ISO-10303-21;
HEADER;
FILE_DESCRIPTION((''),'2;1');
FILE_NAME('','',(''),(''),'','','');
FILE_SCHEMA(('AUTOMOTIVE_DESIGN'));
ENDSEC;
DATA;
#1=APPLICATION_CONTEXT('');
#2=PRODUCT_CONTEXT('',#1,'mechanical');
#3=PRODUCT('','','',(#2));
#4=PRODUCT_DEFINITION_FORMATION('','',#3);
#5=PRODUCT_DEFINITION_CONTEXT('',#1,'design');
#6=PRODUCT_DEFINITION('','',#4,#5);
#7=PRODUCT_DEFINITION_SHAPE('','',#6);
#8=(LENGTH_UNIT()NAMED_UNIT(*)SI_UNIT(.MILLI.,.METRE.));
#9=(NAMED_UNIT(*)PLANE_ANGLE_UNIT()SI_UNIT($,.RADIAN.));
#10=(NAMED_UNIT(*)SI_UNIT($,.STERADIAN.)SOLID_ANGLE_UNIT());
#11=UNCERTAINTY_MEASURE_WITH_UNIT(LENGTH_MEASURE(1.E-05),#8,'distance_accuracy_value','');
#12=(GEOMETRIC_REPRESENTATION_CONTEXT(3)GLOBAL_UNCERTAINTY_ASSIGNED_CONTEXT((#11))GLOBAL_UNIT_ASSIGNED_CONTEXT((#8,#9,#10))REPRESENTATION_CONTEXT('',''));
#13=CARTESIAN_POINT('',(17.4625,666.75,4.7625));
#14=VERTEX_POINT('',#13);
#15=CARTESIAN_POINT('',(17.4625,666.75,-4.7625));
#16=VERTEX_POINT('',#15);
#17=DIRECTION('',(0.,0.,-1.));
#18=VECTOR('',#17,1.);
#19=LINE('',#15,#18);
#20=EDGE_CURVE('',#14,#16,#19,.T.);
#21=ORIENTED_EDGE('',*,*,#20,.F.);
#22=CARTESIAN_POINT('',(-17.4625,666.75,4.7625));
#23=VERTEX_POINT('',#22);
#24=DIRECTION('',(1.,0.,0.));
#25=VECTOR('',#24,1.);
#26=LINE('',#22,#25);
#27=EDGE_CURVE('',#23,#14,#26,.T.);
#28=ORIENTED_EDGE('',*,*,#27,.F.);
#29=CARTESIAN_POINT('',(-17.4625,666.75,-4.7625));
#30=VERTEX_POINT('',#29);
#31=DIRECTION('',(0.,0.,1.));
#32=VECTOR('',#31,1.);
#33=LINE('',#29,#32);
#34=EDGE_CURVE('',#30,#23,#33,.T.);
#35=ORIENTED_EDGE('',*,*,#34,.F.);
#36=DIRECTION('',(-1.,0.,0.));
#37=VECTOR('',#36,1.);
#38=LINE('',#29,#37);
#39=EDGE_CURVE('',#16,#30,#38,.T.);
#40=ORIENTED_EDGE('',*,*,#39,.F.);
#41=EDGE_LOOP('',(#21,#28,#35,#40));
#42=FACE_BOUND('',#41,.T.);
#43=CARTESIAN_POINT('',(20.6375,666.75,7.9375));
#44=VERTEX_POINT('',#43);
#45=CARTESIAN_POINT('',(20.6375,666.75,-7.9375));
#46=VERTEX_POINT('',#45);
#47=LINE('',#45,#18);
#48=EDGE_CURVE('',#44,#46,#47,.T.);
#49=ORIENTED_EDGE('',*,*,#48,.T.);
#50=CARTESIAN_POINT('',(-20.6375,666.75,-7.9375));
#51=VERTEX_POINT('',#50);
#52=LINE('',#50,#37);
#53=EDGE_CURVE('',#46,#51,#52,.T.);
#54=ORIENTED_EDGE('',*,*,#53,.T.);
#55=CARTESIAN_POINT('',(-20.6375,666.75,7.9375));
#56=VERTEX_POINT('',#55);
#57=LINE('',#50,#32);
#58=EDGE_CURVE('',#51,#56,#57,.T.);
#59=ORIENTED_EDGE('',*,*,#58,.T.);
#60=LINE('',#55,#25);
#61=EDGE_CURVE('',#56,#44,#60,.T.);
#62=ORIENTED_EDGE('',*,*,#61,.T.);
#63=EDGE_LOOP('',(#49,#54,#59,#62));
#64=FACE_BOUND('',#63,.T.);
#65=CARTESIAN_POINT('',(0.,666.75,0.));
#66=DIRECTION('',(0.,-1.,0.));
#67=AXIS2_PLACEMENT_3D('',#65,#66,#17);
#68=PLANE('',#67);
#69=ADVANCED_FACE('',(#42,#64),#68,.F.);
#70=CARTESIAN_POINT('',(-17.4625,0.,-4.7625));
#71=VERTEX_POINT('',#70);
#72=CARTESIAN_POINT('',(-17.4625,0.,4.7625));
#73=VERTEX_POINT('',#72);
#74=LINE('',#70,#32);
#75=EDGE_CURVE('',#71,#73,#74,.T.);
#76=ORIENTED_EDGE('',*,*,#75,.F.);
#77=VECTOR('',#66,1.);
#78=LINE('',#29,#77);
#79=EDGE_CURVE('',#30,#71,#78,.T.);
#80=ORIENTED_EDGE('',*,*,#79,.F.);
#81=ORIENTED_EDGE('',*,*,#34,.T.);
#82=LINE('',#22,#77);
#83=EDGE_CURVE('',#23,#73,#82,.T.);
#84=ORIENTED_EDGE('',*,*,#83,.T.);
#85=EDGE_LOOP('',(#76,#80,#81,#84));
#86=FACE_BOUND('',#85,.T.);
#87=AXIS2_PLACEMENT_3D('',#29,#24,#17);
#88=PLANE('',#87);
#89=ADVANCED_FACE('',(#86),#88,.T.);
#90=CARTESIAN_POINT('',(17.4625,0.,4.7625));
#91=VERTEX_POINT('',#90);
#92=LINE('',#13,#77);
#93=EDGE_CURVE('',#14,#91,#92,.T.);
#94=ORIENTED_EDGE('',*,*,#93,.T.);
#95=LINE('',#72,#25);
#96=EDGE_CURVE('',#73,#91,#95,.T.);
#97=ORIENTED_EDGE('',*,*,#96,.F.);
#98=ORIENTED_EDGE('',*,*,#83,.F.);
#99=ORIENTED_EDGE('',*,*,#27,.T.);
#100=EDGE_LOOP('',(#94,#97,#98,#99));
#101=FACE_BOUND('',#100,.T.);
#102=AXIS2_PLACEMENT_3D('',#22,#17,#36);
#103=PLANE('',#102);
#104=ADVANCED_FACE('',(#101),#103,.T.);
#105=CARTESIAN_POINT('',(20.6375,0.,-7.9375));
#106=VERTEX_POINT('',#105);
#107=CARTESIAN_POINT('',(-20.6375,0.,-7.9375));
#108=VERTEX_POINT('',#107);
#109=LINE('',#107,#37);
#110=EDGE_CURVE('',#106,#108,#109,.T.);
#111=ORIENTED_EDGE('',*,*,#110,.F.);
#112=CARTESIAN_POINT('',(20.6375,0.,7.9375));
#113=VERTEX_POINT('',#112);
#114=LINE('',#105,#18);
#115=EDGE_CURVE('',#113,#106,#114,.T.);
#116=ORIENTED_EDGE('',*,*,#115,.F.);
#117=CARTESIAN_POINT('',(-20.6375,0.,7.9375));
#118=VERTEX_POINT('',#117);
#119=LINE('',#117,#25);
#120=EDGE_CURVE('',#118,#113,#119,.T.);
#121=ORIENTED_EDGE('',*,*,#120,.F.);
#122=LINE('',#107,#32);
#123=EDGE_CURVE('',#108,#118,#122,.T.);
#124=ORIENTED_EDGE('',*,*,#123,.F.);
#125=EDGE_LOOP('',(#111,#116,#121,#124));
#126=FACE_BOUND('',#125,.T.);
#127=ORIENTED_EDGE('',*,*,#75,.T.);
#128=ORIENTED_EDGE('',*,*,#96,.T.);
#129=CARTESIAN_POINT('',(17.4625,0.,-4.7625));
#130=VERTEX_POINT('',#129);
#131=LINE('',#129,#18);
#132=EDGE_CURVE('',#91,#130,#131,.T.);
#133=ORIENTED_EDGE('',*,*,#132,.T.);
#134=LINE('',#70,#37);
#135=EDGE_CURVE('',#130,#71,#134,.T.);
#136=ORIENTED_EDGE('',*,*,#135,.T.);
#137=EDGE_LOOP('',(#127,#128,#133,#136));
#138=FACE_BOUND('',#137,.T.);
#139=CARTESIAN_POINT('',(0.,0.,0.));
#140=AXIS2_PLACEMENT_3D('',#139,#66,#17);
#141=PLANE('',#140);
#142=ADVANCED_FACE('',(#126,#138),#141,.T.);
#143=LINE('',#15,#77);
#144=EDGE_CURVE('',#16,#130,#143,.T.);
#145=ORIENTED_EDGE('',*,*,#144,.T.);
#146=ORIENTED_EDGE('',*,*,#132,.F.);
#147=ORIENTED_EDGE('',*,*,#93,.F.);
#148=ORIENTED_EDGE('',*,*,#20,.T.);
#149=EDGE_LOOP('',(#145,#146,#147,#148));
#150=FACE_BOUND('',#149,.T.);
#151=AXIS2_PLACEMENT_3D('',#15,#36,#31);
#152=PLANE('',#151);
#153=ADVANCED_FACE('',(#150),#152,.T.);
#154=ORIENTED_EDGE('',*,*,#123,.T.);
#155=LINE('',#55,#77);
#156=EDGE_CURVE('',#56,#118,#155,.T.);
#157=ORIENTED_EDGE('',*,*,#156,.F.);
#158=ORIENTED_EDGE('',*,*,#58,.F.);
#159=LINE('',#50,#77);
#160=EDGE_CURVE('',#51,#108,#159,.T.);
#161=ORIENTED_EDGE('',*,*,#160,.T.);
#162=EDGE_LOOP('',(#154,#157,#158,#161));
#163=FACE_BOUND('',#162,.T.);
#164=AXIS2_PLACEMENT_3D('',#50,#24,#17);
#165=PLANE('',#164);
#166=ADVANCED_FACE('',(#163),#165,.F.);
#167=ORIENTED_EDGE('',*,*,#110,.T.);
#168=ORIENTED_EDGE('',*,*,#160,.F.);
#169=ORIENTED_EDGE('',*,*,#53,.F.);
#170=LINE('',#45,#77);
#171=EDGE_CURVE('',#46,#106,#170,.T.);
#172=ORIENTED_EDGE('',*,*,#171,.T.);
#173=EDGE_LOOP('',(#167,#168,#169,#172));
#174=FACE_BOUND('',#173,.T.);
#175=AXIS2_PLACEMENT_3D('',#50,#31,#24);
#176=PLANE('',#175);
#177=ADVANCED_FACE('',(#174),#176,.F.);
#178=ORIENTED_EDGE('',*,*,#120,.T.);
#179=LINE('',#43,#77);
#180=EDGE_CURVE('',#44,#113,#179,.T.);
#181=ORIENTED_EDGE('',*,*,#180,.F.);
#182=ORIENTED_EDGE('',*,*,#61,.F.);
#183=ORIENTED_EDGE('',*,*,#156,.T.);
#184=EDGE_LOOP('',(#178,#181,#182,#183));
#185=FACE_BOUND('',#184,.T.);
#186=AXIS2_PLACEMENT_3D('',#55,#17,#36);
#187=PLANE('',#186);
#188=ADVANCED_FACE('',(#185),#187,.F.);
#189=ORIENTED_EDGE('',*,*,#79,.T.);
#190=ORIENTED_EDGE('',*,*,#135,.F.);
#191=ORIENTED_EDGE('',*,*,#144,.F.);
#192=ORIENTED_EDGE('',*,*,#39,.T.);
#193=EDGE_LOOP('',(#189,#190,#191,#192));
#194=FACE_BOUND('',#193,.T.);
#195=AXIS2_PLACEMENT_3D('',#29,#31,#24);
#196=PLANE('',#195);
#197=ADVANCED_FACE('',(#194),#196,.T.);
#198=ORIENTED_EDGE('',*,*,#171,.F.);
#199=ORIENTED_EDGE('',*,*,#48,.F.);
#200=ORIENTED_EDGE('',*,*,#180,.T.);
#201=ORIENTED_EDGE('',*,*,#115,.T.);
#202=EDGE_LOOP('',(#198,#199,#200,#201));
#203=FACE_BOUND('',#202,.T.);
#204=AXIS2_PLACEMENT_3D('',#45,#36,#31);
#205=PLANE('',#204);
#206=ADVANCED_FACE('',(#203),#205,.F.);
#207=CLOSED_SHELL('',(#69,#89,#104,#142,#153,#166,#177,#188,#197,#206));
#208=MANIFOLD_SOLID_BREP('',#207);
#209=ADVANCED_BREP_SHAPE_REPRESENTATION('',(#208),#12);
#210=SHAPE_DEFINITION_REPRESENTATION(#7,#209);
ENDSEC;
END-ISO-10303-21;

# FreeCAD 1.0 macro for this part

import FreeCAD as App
import Part
import Sketcher
Q = App.Units.Quantity


def add_polygon(sketch, points):
    """Adds a closed chain of lines whose ends are joined by coincident constraints."""
    first, n = sketch.GeometryCount, len(points)
    for a, b in zip(points, points[1:] + points[:1]):
        sketch.addGeometry(Part.LineSegment(App.Vector(*a, 0), App.Vector(*b, 0)), False)
    for i in range(n):
        sketch.addConstraint(Sketcher.Constraint("Coincident", first + i, 2, first + (i + 1) % n, 1))

doc = App.newDocument("Part")
body = doc.addObject("PartDesign::Body", "Body")

# Sketch on XZ plane
sketch1 = doc.addObject("Sketcher::SketchObject", "Sketch")
body.addObject(sketch1)
sketch1.AttachmentSupport = (doc.XZ_Plane, [""])
sketch1.MapMode = "FlatFace"
add_polygon(sketch1, [(-20.6375, -7.9375), (-20.6375, 7.9375), (20.6375, 7.9375), (20.6375, -7.9375)])  # lines 0-3
add_polygon(sketch1, [(17.4625, 4.7625), (-17.4625, 4.7625), (-17.4625, -4.7625), (17.4625, -4.7625)])  # lines 4-7
sketch1.addConstraint([
    Sketcher.Constraint("Vertical", 0),
    Sketcher.Constraint("Horizontal", 1),
    Sketcher.Constraint("Vertical", 2),
    Sketcher.Constraint("Horizontal", 3),
    Sketcher.Constraint("Horizontal", 4),
    Sketcher.Constraint("Vertical", 5),
    Sketcher.Constraint("Horizontal", 6),
    Sketcher.Constraint("Vertical", 7),
    Sketcher.Constraint("Symmetric", 0, 2, 2, 2, -1, 1),
    Sketcher.Constraint("Symmetric", 4, 2, 6, 2, -1, 1),
    Sketcher.Constraint("DistanceY", 3, 2, 4, 2, Q("0.5 in")),
    Sketcher.Constraint("DistanceX", 4, 2, 1, 2, Q("1.5 in")),
    Sketcher.Constraint("DistanceX", 1, 1, 1, 2, Q("1.625 in")),
    Sketcher.Constraint("DistanceY", 0, 1, 0, 2, Q("0.625 in")),
])
pad1 = doc.addObject("PartDesign::Pad", "Pad")
body.addObject(pad1)
pad1.Profile = sketch1
pad1.Length = Q("26.25 in")
pad1.Reversed = True

doc.recompute()
